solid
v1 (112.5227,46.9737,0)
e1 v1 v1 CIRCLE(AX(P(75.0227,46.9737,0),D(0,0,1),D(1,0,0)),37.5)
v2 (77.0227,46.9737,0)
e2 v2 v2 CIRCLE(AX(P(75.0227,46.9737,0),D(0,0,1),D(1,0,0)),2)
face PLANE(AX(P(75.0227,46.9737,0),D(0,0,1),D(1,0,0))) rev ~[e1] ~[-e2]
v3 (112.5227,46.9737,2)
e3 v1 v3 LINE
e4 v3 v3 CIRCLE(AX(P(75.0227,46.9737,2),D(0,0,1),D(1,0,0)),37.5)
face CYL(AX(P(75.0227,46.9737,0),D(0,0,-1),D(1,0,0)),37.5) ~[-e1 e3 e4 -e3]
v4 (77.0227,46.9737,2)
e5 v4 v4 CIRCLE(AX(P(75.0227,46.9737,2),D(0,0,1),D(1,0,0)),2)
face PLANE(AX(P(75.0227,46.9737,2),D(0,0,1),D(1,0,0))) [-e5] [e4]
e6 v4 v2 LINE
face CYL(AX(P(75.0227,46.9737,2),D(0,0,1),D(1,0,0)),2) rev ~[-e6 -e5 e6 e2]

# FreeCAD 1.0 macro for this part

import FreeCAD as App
import Part
import Sketcher
from FreeCAD import Vector

doc = App.newDocument("Part")
body = doc.addObject("PartDesign::Body", "Body")

sketch1 = doc.addObject("Sketcher::SketchObject", "Sketch")
body.addObject(sketch1)
sketch1.AttachmentSupport = (doc.XY_Plane, [""])
sketch1.MapMode = "FlatFace"
sketch1.addGeometry(Part.Circle(Vector(75, 47, 0), Vector(0, 0, 1), 38), False)
sketch1.addConstraint(Sketcher.Constraint("Diameter", 0, 75.0))
sketch1.addConstraint(Sketcher.Constraint("DistanceX", -1, 1, 0, 3, 75.0227))
sketch1.addConstraint(Sketcher.Constraint("DistanceY", -1, 1, 0, 3, 46.9737))
pad1 = doc.addObject("PartDesign::Pad", "Pad")
body.addObject(pad1)
pad1.Profile = sketch1
pad1.Length = 2

sketch2 = doc.addObject("Sketcher::SketchObject", "Sketch001")
body.addObject(sketch2)
sketch2.AttachmentSupport = (doc.XY_Plane, [""])
sketch2.MapMode = "FlatFace"
sketch2.AttachmentOffset = App.Placement(Vector(0, 0, 2), App.Rotation())
sketch2.addGeometry(Part.Circle(Vector(75, 47, 0), Vector(0, 0, 1), 2), False)
sketch2.addConstraint(Sketcher.Constraint("Diameter", 0, 4.0))
sketch2.addConstraint(Sketcher.Constraint("DistanceX", -1, 1, 0, 3, 75.0227))
sketch2.addConstraint(Sketcher.Constraint("DistanceY", -1, 1, 0, 3, 46.9737))
pocket1 = doc.addObject("PartDesign::Pocket", "Pocket")
body.addObject(pocket1)
pocket1.Profile = sketch2
pocket1.Type = "ThroughAll"

doc.recompute()
